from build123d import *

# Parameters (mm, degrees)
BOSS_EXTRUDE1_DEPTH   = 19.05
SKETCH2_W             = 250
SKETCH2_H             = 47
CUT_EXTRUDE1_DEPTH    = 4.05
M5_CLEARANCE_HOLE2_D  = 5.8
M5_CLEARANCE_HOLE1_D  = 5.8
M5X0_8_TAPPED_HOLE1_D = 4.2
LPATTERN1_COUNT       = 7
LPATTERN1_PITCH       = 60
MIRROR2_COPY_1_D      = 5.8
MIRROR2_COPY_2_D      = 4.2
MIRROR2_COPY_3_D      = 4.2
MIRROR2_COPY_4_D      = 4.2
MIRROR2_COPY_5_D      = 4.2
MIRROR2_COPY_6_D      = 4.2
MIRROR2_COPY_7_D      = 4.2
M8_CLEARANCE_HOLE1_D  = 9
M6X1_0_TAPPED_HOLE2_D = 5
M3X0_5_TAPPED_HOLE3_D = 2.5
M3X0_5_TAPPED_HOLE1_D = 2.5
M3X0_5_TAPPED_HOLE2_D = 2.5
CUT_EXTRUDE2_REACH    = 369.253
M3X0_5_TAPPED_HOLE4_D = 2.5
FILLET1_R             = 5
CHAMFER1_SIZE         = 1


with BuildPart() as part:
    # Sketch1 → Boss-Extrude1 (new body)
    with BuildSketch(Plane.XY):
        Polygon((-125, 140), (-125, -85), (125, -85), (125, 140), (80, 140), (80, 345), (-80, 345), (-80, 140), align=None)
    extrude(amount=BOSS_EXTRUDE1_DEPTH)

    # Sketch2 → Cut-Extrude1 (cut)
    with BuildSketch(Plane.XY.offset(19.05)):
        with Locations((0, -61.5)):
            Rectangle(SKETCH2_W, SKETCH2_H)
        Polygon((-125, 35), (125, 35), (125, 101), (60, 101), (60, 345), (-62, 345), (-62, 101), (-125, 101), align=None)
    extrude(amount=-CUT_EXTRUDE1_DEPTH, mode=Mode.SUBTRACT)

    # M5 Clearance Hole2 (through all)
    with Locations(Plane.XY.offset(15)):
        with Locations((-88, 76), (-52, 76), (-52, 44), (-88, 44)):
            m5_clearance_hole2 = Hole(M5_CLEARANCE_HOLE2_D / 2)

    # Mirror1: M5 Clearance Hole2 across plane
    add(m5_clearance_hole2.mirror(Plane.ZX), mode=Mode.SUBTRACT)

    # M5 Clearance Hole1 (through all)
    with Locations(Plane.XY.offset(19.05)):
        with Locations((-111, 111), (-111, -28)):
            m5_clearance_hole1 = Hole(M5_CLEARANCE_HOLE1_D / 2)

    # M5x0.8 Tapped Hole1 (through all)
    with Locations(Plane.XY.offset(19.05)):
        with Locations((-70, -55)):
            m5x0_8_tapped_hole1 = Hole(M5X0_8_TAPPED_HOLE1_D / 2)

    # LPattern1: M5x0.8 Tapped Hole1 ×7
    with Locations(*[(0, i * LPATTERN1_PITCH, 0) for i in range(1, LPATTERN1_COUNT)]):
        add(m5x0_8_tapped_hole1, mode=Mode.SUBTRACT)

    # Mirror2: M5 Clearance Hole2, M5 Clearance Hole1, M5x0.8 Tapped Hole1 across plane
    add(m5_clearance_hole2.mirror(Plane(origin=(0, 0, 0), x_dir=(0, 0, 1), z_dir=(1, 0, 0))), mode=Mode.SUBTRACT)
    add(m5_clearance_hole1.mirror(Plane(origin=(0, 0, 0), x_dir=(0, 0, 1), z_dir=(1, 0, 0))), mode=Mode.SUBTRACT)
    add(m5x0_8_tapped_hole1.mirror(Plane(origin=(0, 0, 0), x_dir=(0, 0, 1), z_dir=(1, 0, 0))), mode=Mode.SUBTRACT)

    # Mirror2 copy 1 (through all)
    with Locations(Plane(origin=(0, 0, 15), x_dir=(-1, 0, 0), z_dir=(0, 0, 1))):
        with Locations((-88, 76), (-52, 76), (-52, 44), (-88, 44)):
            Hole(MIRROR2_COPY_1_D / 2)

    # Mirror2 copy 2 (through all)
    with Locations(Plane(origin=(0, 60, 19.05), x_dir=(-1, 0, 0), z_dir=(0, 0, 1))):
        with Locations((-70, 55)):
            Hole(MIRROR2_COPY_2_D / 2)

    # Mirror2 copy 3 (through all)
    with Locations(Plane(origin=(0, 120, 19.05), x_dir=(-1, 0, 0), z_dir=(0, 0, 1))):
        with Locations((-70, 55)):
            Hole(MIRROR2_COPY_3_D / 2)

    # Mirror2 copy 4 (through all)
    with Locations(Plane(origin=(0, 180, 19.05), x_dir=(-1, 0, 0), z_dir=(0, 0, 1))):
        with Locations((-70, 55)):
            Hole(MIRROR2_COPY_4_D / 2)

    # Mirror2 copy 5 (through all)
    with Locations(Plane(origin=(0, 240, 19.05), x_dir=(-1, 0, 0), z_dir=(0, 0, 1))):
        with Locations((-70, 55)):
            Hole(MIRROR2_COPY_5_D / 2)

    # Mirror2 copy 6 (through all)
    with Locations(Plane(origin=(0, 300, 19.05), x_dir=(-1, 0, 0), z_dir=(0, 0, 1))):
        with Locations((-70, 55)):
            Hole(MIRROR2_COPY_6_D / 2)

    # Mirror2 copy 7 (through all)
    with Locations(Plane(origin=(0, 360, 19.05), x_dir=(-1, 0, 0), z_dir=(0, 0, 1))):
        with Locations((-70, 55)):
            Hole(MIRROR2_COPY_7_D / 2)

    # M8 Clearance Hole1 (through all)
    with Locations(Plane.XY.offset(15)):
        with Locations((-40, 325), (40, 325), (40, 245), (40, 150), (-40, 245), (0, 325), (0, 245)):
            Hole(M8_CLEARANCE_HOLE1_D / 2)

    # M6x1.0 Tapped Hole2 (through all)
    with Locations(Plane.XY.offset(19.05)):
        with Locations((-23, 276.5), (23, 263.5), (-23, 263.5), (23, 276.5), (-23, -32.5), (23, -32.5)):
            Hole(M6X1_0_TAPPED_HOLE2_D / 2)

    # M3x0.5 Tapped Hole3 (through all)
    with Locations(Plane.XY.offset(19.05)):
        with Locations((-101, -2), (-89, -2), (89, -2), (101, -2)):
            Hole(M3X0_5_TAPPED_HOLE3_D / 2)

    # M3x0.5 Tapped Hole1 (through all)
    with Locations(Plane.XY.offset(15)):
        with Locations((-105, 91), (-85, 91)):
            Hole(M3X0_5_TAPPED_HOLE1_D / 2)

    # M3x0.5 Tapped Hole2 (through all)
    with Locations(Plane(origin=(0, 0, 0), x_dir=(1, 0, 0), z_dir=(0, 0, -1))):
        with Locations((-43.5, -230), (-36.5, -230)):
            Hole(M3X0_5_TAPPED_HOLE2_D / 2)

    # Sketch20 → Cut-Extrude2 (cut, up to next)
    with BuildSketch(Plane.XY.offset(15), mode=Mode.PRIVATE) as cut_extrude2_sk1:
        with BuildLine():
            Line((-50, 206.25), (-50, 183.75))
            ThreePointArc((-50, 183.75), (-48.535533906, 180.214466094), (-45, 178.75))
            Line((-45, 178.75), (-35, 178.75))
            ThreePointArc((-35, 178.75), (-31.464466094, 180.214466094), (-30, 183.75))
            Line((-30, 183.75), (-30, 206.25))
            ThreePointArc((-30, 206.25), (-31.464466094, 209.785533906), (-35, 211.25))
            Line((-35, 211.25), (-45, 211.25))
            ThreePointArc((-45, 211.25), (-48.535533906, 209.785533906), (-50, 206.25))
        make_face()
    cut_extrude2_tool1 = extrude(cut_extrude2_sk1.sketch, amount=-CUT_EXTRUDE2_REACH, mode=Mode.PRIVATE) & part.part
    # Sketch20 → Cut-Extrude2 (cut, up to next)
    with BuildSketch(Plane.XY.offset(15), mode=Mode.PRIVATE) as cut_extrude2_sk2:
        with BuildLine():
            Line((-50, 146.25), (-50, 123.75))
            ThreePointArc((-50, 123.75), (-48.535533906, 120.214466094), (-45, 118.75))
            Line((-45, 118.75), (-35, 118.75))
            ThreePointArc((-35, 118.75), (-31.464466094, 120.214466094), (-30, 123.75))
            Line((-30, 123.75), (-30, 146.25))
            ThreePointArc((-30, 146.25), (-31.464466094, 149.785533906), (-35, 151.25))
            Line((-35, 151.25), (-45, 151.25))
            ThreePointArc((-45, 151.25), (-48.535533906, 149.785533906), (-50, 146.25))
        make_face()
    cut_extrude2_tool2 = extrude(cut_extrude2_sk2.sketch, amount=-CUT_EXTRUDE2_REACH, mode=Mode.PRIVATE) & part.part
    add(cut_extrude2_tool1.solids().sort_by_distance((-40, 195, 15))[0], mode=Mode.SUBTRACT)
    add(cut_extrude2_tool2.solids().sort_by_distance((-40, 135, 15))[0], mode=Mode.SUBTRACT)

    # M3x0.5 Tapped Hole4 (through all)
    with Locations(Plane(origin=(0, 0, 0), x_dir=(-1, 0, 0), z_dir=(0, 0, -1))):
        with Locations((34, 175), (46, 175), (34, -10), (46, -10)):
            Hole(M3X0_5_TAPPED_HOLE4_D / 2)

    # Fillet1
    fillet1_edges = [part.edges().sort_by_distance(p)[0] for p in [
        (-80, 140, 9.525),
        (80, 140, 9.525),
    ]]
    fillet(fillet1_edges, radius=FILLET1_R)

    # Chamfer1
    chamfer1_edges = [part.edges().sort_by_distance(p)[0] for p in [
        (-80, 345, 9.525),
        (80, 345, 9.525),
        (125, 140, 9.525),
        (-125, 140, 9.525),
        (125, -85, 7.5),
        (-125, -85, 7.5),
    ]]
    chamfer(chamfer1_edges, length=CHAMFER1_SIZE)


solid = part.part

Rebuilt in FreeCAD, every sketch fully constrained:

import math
import FreeCAD as App
import Part
import Sketcher

V = App.Vector
Q = App.Units.Quantity


def edges_at(feature, points):
    """Names of the edges that pass closest to the given points."""
    edges = feature.Shape.Edges
    near = lambda p: min(range(len(edges)), key=lambda i: edges[i].distToShape(Part.Vertex(*p))[0])
    return sorted({f"Edge{near(p) + 1}" for p in points})

doc = App.newDocument("Part")
body = doc.addObject("PartDesign::Body", "Body")

# Sketch on XY plane
sketch1 = body.newObject("Sketcher::SketchObject", "Sketch")
sketch1.AttachmentSupport = (doc.getObject("XY_Plane"), [""])
sketch1.MapMode = "FlatFace"
sketch1.addGeometry(Part.LineSegment(V(-125, 140, 0), V(-125, -85, 0)), False)
sketch1.addGeometry(Part.LineSegment(V(-125, -85, 0), V(125, -85, 0)), False)
sketch1.addGeometry(Part.LineSegment(V(125, -85, 0), V(125, 140, 0)), False)
sketch1.addGeometry(Part.LineSegment(V(125, 140, 0), V(80, 140, 0)), False)
sketch1.addGeometry(Part.LineSegment(V(80, 140, 0), V(80, 345, 0)), False)
sketch1.addGeometry(Part.LineSegment(V(80, 345, 0), V(-80, 345, 0)), False)
sketch1.addGeometry(Part.LineSegment(V(-80, 345, 0), V(-80, 140, 0)), False)
sketch1.addGeometry(Part.LineSegment(V(-80, 140, 0), V(-125, 140, 0)), False)
sketch1.addConstraint(Sketcher.Constraint("Coincident", 0, 2, 1, 1))
sketch1.addConstraint(Sketcher.Constraint("Coincident", 1, 2, 2, 1))
sketch1.addConstraint(Sketcher.Constraint("Coincident", 2, 2, 3, 1))
sketch1.addConstraint(Sketcher.Constraint("Coincident", 3, 2, 4, 1))
sketch1.addConstraint(Sketcher.Constraint("Coincident", 4, 2, 5, 1))
sketch1.addConstraint(Sketcher.Constraint("Coincident", 5, 2, 6, 1))
sketch1.addConstraint(Sketcher.Constraint("Coincident", 6, 2, 7, 1))
sketch1.addConstraint(Sketcher.Constraint("Coincident", 7, 2, 0, 1))
sketch1.addConstraint(Sketcher.Constraint("Vertical", 0))
sketch1.addConstraint(Sketcher.Constraint("Horizontal", 1))
sketch1.addConstraint(Sketcher.Constraint("Vertical", 2))
sketch1.addConstraint(Sketcher.Constraint("Horizontal", 3))
sketch1.addConstraint(Sketcher.Constraint("Vertical", 4))
sketch1.addConstraint(Sketcher.Constraint("Horizontal", 5))
sketch1.addConstraint(Sketcher.Constraint("Vertical", 6))
sketch1.addConstraint(Sketcher.Constraint("Horizontal", 7))
sketch1.addConstraint(Sketcher.Constraint("Symmetric", 3, 2, 6, 2, -2))
sketch1.addConstraint(Sketcher.Constraint("Equal", 3, 7))
sketch1.addConstraint(Sketcher.Constraint("DistanceX", 1, 1, 1, 2, Q("250 mm")))
sketch1.addConstraint(Sketcher.Constraint("DistanceX", 3, 2, 3, 1, Q("45 mm")))
sketch1.addConstraint(Sketcher.Constraint("DistanceY", 0, 2, 0, 1, Q("225 mm")))
sketch1.addConstraint(Sketcher.Constraint("DistanceY", 4, 1, 4, 2, Q("205 mm")))
sketch1.addConstraint(Sketcher.Constraint("DistanceY", 0, 2, -1, 1, Q("85 mm")))
pad1 = body.newObject("PartDesign::Pad", "Pad")
pad1.Profile = sketch1
pad1.Length = 19.05

# Sketch on XY plane
sketch2 = body.newObject("Sketcher::SketchObject", "Sketch001")
sketch2.AttachmentSupport = (doc.getObject("XY_Plane"), [""])
sketch2.MapMode = "FlatFace"
sketch2.AttachmentOffset = App.Placement(V(0, 0, 19.05), App.Rotation())
sketch2.addGeometry(Part.LineSegment(V(-125, -38, 0), V(-125, -85, 0)), False)
sketch2.addGeometry(Part.LineSegment(V(-125, -85, 0), V(125, -85, 0)), False)
sketch2.addGeometry(Part.LineSegment(V(125, -85, 0), V(125, -38, 0)), False)
sketch2.addGeometry(Part.LineSegment(V(125, -38, 0), V(-125, -38, 0)), False)
sketch2.addGeometry(Part.LineSegment(V(-125, 35, 0), V(125, 35, 0)), False)
sketch2.addGeometry(Part.LineSegment(V(125, 35, 0), V(125, 101, 0)), False)
sketch2.addGeometry(Part.LineSegment(V(125, 101, 0), V(60, 101, 0)), False)
sketch2.addGeometry(Part.LineSegment(V(60, 101, 0), V(60, 345, 0)), False)
sketch2.addGeometry(Part.LineSegment(V(60, 345, 0), V(-62, 345, 0)), False)
sketch2.addGeometry(Part.LineSegment(V(-62, 345, 0), V(-62, 101, 0)), False)
sketch2.addGeometry(Part.LineSegment(V(-62, 101, 0), V(-125, 101, 0)), False)
sketch2.addGeometry(Part.LineSegment(V(-125, 101, 0), V(-125, 35, 0)), False)
sketch2.addConstraint(Sketcher.Constraint("Coincident", 0, 2, 1, 1))
sketch2.addConstraint(Sketcher.Constraint("Coincident", 1, 2, 2, 1))
sketch2.addConstraint(Sketcher.Constraint("Coincident", 2, 2, 3, 1))
sketch2.addConstraint(Sketcher.Constraint("Coincident", 3, 2, 0, 1))
sketch2.addConstraint(Sketcher.Constraint("Coincident", 4, 2, 5, 1))
sketch2.addConstraint(Sketcher.Constraint("Coincident", 5, 2, 6, 1))
sketch2.addConstraint(Sketcher.Constraint("Coincident", 6, 2, 7, 1))
sketch2.addConstraint(Sketcher.Constraint("Coincident", 7, 2, 8, 1))
sketch2.addConstraint(Sketcher.Constraint("Coincident", 8, 2, 9, 1))
sketch2.addConstraint(Sketcher.Constraint("Coincident", 9, 2, 10, 1))
sketch2.addConstraint(Sketcher.Constraint("Coincident", 10, 2, 11, 1))
sketch2.addConstraint(Sketcher.Constraint("Coincident", 11, 2, 4, 1))
sketch2.addConstraint(Sketcher.Constraint("Vertical", 0))
sketch2.addConstraint(Sketcher.Constraint("Horizontal", 1))
sketch2.addConstraint(Sketcher.Constraint("Vertical", 2))
sketch2.addConstraint(Sketcher.Constraint("Horizontal", 3))
sketch2.addConstraint(Sketcher.Constraint("Horizontal", 4))
sketch2.addConstraint(Sketcher.Constraint("Vertical", 5))
sketch2.addConstraint(Sketcher.Constraint("Horizontal", 6))
sketch2.addConstraint(Sketcher.Constraint("Vertical", 7))
sketch2.addConstraint(Sketcher.Constraint("Horizontal", 8))
sketch2.addConstraint(Sketcher.Constraint("Vertical", 9))
sketch2.addConstraint(Sketcher.Constraint("Horizontal", 10))
sketch2.addConstraint(Sketcher.Constraint("Vertical", 11))
sketch2.addConstraint(Sketcher.Constraint("Symmetric", 5, 2, 10, 2, -2))
sketch2.addConstraint(Sketcher.Constraint("Vertical", 2, 2, 4, 2))
sketch2.addConstraint(Sketcher.Constraint("Vertical", 3, 2, 10, 2))
sketch2.addConstraint(Sketcher.Constraint("DistanceX", 1, 1, 1, 2, Q("250 mm")))
sketch2.addConstraint(Sketcher.Constraint("DistanceX", 6, 2, 6, 1, Q("65 mm")))
sketch2.addConstraint(Sketcher.Constraint("DistanceX", 8, 2, 8, 1, Q("122 mm")))
sketch2.addConstraint(Sketcher.Constraint("DistanceY", 0, 2, 0, 1, Q("47 mm")))
sketch2.addConstraint(Sketcher.Constraint("DistanceY", 5, 1, 5, 2, Q("66 mm")))
sketch2.addConstraint(Sketcher.Constraint("DistanceY", 7, 1, 7, 2, Q("244 mm")))
sketch2.addConstraint(Sketcher.Constraint("DistanceY", 0, 2, -1, 1, Q("85 mm")))
sketch2.addConstraint(Sketcher.Constraint("DistanceY", -1, 1, 4, 2, Q("35 mm")))
pocket1 = body.newObject("PartDesign::Pocket", "Pocket")
pocket1.Profile = sketch2
pocket1.Length = 4.05

# Sketch on XY plane
sketch3 = body.newObject("Sketcher::SketchObject", "Sketch002")
sketch3.AttachmentSupport = (doc.getObject("XY_Plane"), [""])
sketch3.MapMode = "FlatFace"
sketch3.AttachmentOffset = App.Placement(V(0, 0, 15), App.Rotation())
sketch3.addGeometry(Part.Circle(V(-88, 76, 0), V(0, 0, 1), 2.9), False)
sketch3.addGeometry(Part.Circle(V(-52, 76, 0), V(0, 0, 1), 2.9), False)
sketch3.addGeometry(Part.Circle(V(-52, 44, 0), V(0, 0, 1), 2.9), False)
sketch3.addGeometry(Part.Circle(V(-88, 44, 0), V(0, 0, 1), 2.9), False)
sketch3.addConstraint(Sketcher.Constraint("Equal", 0, 1))
sketch3.addConstraint(Sketcher.Constraint("Equal", 1, 2))
sketch3.addConstraint(Sketcher.Constraint("Equal", 2, 3))
sketch3.addConstraint(Sketcher.Constraint("Horizontal", 0, 3, 1, 3))
sketch3.addConstraint(Sketcher.Constraint("Horizontal", 2, 3, 3, 3))
sketch3.addConstraint(Sketcher.Constraint("Vertical", 1, 3, 2, 3))
sketch3.addConstraint(Sketcher.Constraint("Vertical", 0, 3, 3, 3))
sketch3.addConstraint(Sketcher.Constraint("Diameter", 0, Q("5.8 mm")))
sketch3.addConstraint(Sketcher.Constraint("DistanceX", 0, 3, -1, 1, Q("88 mm")))
sketch3.addConstraint(Sketcher.Constraint("DistanceY", -1, 1, 0, 3, Q("76 mm")))
sketch3.addConstraint(Sketcher.Constraint("DistanceX", 1, 3, -1, 1, Q("52 mm")))
sketch3.addConstraint(Sketcher.Constraint("DistanceY", -1, 1, 2, 3, Q("44 mm")))
doc.recompute()
hole = body.newObject("PartDesign::Hole", "Hole")
hole.Profile = sketch3
hole.ThreadType = "None"
hole.Diameter = 5.8
hole.DepthType = "ThroughAll"
doc.recompute()

mirrored = body.newObject("PartDesign::Mirrored", "Mirrored")
mirrored.Originals = [hole]
mirrored.MirrorPlane = (doc.getObject("XZ_Plane"), [""])
body.Tip = mirrored

# Sketch on XY plane
sketch4 = body.newObject("Sketcher::SketchObject", "Sketch003")
sketch4.AttachmentSupport = (doc.getObject("XY_Plane"), [""])
sketch4.MapMode = "FlatFace"
sketch4.AttachmentOffset = App.Placement(V(0, 0, 19.05), App.Rotation())
sketch4.addGeometry(Part.Circle(V(-111, 111, 0), V(0, 0, 1), 2.9), False)
sketch4.addGeometry(Part.Circle(V(-111, -28, 0), V(0, 0, 1), 2.9), False)
sketch4.addConstraint(Sketcher.Constraint("Equal", 0, 1))
sketch4.addConstraint(Sketcher.Constraint("Vertical", 0, 3, 1, 3))
sketch4.addConstraint(Sketcher.Constraint("Diameter", 0, Q("5.8 mm")))
sketch4.addConstraint(Sketcher.Constraint("DistanceX", 0, 3, -1, 1, Q("111 mm")))
sketch4.addConstraint(Sketcher.Constraint("DistanceY", -1, 1, 0, 3, Q("111 mm")))
sketch4.addConstraint(Sketcher.Constraint("DistanceY", 1, 3, -1, 1, Q("28 mm")))
doc.recompute()
hole2 = body.newObject("PartDesign::Hole", "Hole001")
hole2.Profile = sketch4
hole2.ThreadType = "None"
hole2.Diameter = 5.8
hole2.DepthType = "ThroughAll"

# Sketch on XY plane
sketch5 = body.newObject("Sketcher::SketchObject", "Sketch004")
sketch5.AttachmentSupport = (doc.getObject("XY_Plane"), [""])
sketch5.MapMode = "FlatFace"
sketch5.AttachmentOffset = App.Placement(V(0, 0, 19.05), App.Rotation())
sketch5.addGeometry(Part.Circle(V(-70, -55, 0), V(0, 0, 1), 2.1), False)
sketch5.addConstraint(Sketcher.Constraint("Diameter", 0, Q("4.2 mm")))
sketch5.addConstraint(Sketcher.Constraint("DistanceX", 0, 3, -1, 1, Q("70 mm")))
sketch5.addConstraint(Sketcher.Constraint("DistanceY", 0, 3, -1, 1, Q("55 mm")))
doc.recompute()
hole3 = body.newObject("PartDesign::Hole", "Hole002")
hole3.Profile = sketch5
hole3.ThreadType = "None"
hole3.Diameter = 4.2
hole3.DepthType = "ThroughAll"
doc.recompute()

linearpattern = body.newObject("PartDesign::LinearPattern", "LinearPattern")
linearpattern.Originals = [hole3]
linearpattern.Direction = (doc.getObject("Y_Axis"), [""])
linearpattern.Mode = "offset"
linearpattern.Offset = 60
linearpattern.Occurrences = 7
body.Tip = linearpattern
doc.recompute()

mirrored2 = body.newObject("PartDesign::Mirrored", "Mirrored001")
mirrored2.Originals = [hole, hole2, hole3]
mirrored2.MirrorPlane = (doc.getObject("YZ_Plane"), [""])
body.Tip = mirrored2

# Sketch on XY plane
sketch6 = body.newObject("Sketcher::SketchObject", "Sketch005")
sketch6.AttachmentSupport = (doc.getObject("XY_Plane"), [""])
sketch6.MapMode = "FlatFace"
sketch6.AttachmentOffset = App.Placement(V(0, 0, 15), App.Rotation())
sketch6.addGeometry(Part.Circle(V(88, -76, 0), V(0, 0, 1), 2.9), False)
sketch6.addGeometry(Part.Circle(V(52, -76, 0), V(0, 0, 1), 2.9), False)
sketch6.addGeometry(Part.Circle(V(52, -44, 0), V(0, 0, 1), 2.9), False)
sketch6.addGeometry(Part.Circle(V(88, -44, 0), V(0, 0, 1), 2.9), False)
sketch6.addConstraint(Sketcher.Constraint("Equal", 0, 1))
sketch6.addConstraint(Sketcher.Constraint("Equal", 1, 2))
sketch6.addConstraint(Sketcher.Constraint("Equal", 2, 3))
sketch6.addConstraint(Sketcher.Constraint("Horizontal", 0, 3, 1, 3))
sketch6.addConstraint(Sketcher.Constraint("Horizontal", 2, 3, 3, 3))
sketch6.addConstraint(Sketcher.Constraint("Vertical", 1, 3, 2, 3))
sketch6.addConstraint(Sketcher.Constraint("Vertical", 0, 3, 3, 3))
sketch6.addConstraint(Sketcher.Constraint("Diameter", 0, Q("5.8 mm")))
sketch6.addConstraint(Sketcher.Constraint("DistanceX", -1, 1, 0, 3, Q("88 mm")))
sketch6.addConstraint(Sketcher.Constraint("DistanceY", 0, 3, -1, 1, Q("76 mm")))
sketch6.addConstraint(Sketcher.Constraint("DistanceX", -1, 1, 1, 3, Q("52 mm")))
sketch6.addConstraint(Sketcher.Constraint("DistanceY", 2, 3, -1, 1, Q("44 mm")))
doc.recompute()
hole4 = body.newObject("PartDesign::Hole", "Hole003")
hole4.Profile = sketch6
hole4.ThreadType = "None"
hole4.Diameter = 5.8
hole4.DepthType = "ThroughAll"

# Sketch on XY plane
sketch7 = body.newObject("Sketcher::SketchObject", "Sketch006")
sketch7.AttachmentSupport = (doc.getObject("XY_Plane"), [""])
sketch7.MapMode = "FlatFace"
sketch7.AttachmentOffset = App.Placement(V(0, 0, 19.05), App.Rotation())
sketch7.addGeometry(Part.Circle(V(70, 5, 0), V(0, 0, 1), 2.1), False)
sketch7.addConstraint(Sketcher.Constraint("Diameter", 0, Q("4.2 mm")))
sketch7.addConstraint(Sketcher.Constraint("DistanceX", -1, 1, 0, 3, Q("70 mm")))
sketch7.addConstraint(Sketcher.Constraint("DistanceY", -1, 1, 0, 3, Q("5 mm")))
doc.recompute()
hole5 = body.newObject("PartDesign::Hole", "Hole004")
hole5.Profile = sketch7
hole5.ThreadType = "None"
hole5.Diameter = 4.2
hole5.DepthType = "ThroughAll"

# Sketch on XY plane
sketch8 = body.newObject("Sketcher::SketchObject", "Sketch007")
sketch8.AttachmentSupport = (doc.getObject("XY_Plane"), [""])
sketch8.MapMode = "FlatFace"
sketch8.AttachmentOffset = App.Placement(V(0, 0, 19.05), App.Rotation())
sketch8.addGeometry(Part.Circle(V(70, 65, 0), V(0, 0, 1), 2.1), False)
sketch8.addConstraint(Sketcher.Constraint("Diameter", 0, Q("4.2 mm")))
sketch8.addConstraint(Sketcher.Constraint("DistanceX", -1, 1, 0, 3, Q("70 mm")))
sketch8.addConstraint(Sketcher.Constraint("DistanceY", -1, 1, 0, 3, Q("65 mm")))
doc.recompute()
hole6 = body.newObject("PartDesign::Hole", "Hole005")
hole6.Profile = sketch8
hole6.ThreadType = "None"
hole6.Diameter = 4.2
hole6.DepthType = "ThroughAll"

# Sketch on XY plane
sketch9 = body.newObject("Sketcher::SketchObject", "Sketch008")
sketch9.AttachmentSupport = (doc.getObject("XY_Plane"), [""])
sketch9.MapMode = "FlatFace"
sketch9.AttachmentOffset = App.Placement(V(0, 0, 19.05), App.Rotation())
sketch9.addGeometry(Part.Circle(V(70, 125, 0), V(0, 0, 1), 2.1), False)
sketch9.addConstraint(Sketcher.Constraint("Diameter", 0, Q("4.2 mm")))
sketch9.addConstraint(Sketcher.Constraint("DistanceX", -1, 1, 0, 3, Q("70 mm")))
sketch9.addConstraint(Sketcher.Constraint("DistanceY", -1, 1, 0, 3, Q("125 mm")))
doc.recompute()
hole7 = body.newObject("PartDesign::Hole", "Hole006")
hole7.Profile = sketch9
hole7.ThreadType = "None"
hole7.Diameter = 4.2
hole7.DepthType = "ThroughAll"

# Sketch on XY plane
sketch10 = body.newObject("Sketcher::SketchObject", "Sketch009")
sketch10.AttachmentSupport = (doc.getObject("XY_Plane"), [""])
sketch10.MapMode = "FlatFace"
sketch10.AttachmentOffset = App.Placement(V(0, 0, 19.05), App.Rotation())
sketch10.addGeometry(Part.Circle(V(70, 185, 0), V(0, 0, 1), 2.1), False)
sketch10.addConstraint(Sketcher.Constraint("Diameter", 0, Q("4.2 mm")))
sketch10.addConstraint(Sketcher.Constraint("DistanceX", -1, 1, 0, 3, Q("70 mm")))
sketch10.addConstraint(Sketcher.Constraint("DistanceY", -1, 1, 0, 3, Q("185 mm")))
doc.recompute()
hole8 = body.newObject("PartDesign::Hole", "Hole007")
hole8.Profile = sketch10
hole8.ThreadType = "None"
hole8.Diameter = 4.2
hole8.DepthType = "ThroughAll"

# Sketch on XY plane
sketch11 = body.newObject("Sketcher::SketchObject", "Sketch010")
sketch11.AttachmentSupport = (doc.getObject("XY_Plane"), [""])
sketch11.MapMode = "FlatFace"
sketch11.AttachmentOffset = App.Placement(V(0, 0, 19.05), App.Rotation())
sketch11.addGeometry(Part.Circle(V(70, 245, 0), V(0, 0, 1), 2.1), False)
sketch11.addConstraint(Sketcher.Constraint("Diameter", 0, Q("4.2 mm")))
sketch11.addConstraint(Sketcher.Constraint("DistanceX", -1, 1, 0, 3, Q("70 mm")))
sketch11.addConstraint(Sketcher.Constraint("DistanceY", -1, 1, 0, 3, Q("245 mm")))
doc.recompute()
hole9 = body.newObject("PartDesign::Hole", "Hole008")
hole9.Profile = sketch11
hole9.ThreadType = "None"
hole9.Diameter = 4.2
hole9.DepthType = "ThroughAll"

# Sketch on XY plane
sketch12 = body.newObject("Sketcher::SketchObject", "Sketch011")
sketch12.AttachmentSupport = (doc.getObject("XY_Plane"), [""])
sketch12.MapMode = "FlatFace"
sketch12.AttachmentOffset = App.Placement(V(0, 0, 19.05), App.Rotation())
sketch12.addGeometry(Part.Circle(V(70, 305, 0), V(0, 0, 1), 2.1), False)
sketch12.addConstraint(Sketcher.Constraint("Diameter", 0, Q("4.2 mm")))
sketch12.addConstraint(Sketcher.Constraint("DistanceX", -1, 1, 0, 3, Q("70 mm")))
sketch12.addConstraint(Sketcher.Constraint("DistanceY", -1, 1, 0, 3, Q("305 mm")))
doc.recompute()
hole10 = body.newObject("PartDesign::Hole", "Hole009")
hole10.Profile = sketch12
hole10.ThreadType = "None"
hole10.Diameter = 4.2
hole10.DepthType = "ThroughAll"

# Sketch on XY plane
sketch13 = body.newObject("Sketcher::SketchObject", "Sketch012")
sketch13.AttachmentSupport = (doc.getObject("XY_Plane"), [""])
sketch13.MapMode = "FlatFace"
sketch13.AttachmentOffset = App.Placement(V(0, 0, 15), App.Rotation())
sketch13.addGeometry(Part.Circle(V(-40, 325, 0), V(0, 0, 1), 4.5), False)
sketch13.addGeometry(Part.Circle(V(40, 325, 0), V(0, 0, 1), 4.5), False)
sketch13.addGeometry(Part.Circle(V(40, 245, 0), V(0, 0, 1), 4.5), False)
sketch13.addGeometry(Part.Circle(V(40, 150, 0), V(0, 0, 1), 4.5), False)
sketch13.addGeometry(Part.Circle(V(-40, 245, 0), V(0, 0, 1), 4.5), False)
sketch13.addGeometry(Part.Circle(V(0, 325, 0), V(0, 0, 1), 4.5), False)
sketch13.addGeometry(Part.Circle(V(0, 245, 0), V(0, 0, 1), 4.5), False)
sketch13.addConstraint(Sketcher.Constraint("Equal", 0, 1))
sketch13.addConstraint(Sketcher.Constraint("Equal", 1, 2))
sketch13.addConstraint(Sketcher.Constraint("Equal", 2, 3))
sketch13.addConstraint(Sketcher.Constraint("Equal", 3, 4))
sketch13.addConstraint(Sketcher.Constraint("Equal", 4, 5))
sketch13.addConstraint(Sketcher.Constraint("Equal", 5, 6))
sketch13.addConstraint(Sketcher.Constraint("Symmetric", 0, 3, 1, 3, -2))
sketch13.addConstraint(Sketcher.Constraint("Symmetric", 2, 3, 4, 3, -2))
sketch13.addConstraint(Sketcher.Constraint("PointOnObject", 5, 3, -2))
sketch13.addConstraint(Sketcher.Constraint("PointOnObject", 6, 3, -2))
sketch13.addConstraint(Sketcher.Constraint("Horizontal", 1, 3, 5, 3))
sketch13.addConstraint(Sketcher.Constraint("Horizontal", 4, 3, 6, 3))
sketch13.addConstraint(Sketcher.Constraint("Vertical", 1, 3, 2, 3))
sketch13.addConstraint(Sketcher.Constraint("Vertical", 2, 3, 3, 3))
sketch13.addConstraint(Sketcher.Constraint("Diameter", 0, Q("9 mm")))
sketch13.addConstraint(Sketcher.Constraint("DistanceX", 0, 3, -1, 1, Q("40 mm")))
sketch13.addConstraint(Sketcher.Constraint("DistanceY", -1, 1, 0, 3, Q("325 mm")))
sketch13.addConstraint(Sketcher.Constraint("DistanceY", -1, 1, 2, 3, Q("245 mm")))
sketch13.addConstraint(Sketcher.Constraint("DistanceY", -1, 1, 3, 3, Q("150 mm")))
doc.recompute()
hole11 = body.newObject("PartDesign::Hole", "Hole010")
hole11.Profile = sketch13
hole11.ThreadType = "None"
hole11.Diameter = 9
hole11.DepthType = "ThroughAll"

# Sketch on XY plane
sketch14 = body.newObject("Sketcher::SketchObject", "Sketch013")
sketch14.AttachmentSupport = (doc.getObject("XY_Plane"), [""])
sketch14.MapMode = "FlatFace"
sketch14.AttachmentOffset = App.Placement(V(0, 0, 19.05), App.Rotation())
sketch14.addGeometry(Part.Circle(V(-23, 276.5, 0), V(0, 0, 1), 2.5), False)
sketch14.addGeometry(Part.Circle(V(23, 263.5, 0), V(0, 0, 1), 2.5), False)
sketch14.addGeometry(Part.Circle(V(-23, 263.5, 0), V(0, 0, 1), 2.5), False)
sketch14.addGeometry(Part.Circle(V(23, 276.5, 0), V(0, 0, 1), 2.5), False)
sketch14.addGeometry(Part.Circle(V(-23, -32.5, 0), V(0, 0, 1), 2.5), False)
sketch14.addGeometry(Part.Circle(V(23, -32.5, 0), V(0, 0, 1), 2.5), False)
sketch14.addConstraint(Sketcher.Constraint("Equal", 0, 1))
sketch14.addConstraint(Sketcher.Constraint("Equal", 1, 2))
sketch14.addConstraint(Sketcher.Constraint("Equal", 2, 3))
sketch14.addConstraint(Sketcher.Constraint("Equal", 3, 4))
sketch14.addConstraint(Sketcher.Constraint("Equal", 4, 5))
sketch14.addConstraint(Sketcher.Constraint("Symmetric", 1, 3, 2, 3, -2))
sketch14.addConstraint(Sketcher.Constraint("Symmetric", 0, 3, 3, 3, -2))
sketch14.addConstraint(Sketcher.Constraint("Symmetric", 4, 3, 5, 3, -2))
sketch14.addConstraint(Sketcher.Constraint("Vertical", 0, 3, 2, 3))
sketch14.addConstraint(Sketcher.Constraint("Vertical", 2, 3, 4, 3))
sketch14.addConstraint(Sketcher.Constraint("Diameter", 0, Q("5 mm")))
sketch14.addConstraint(Sketcher.Constraint("DistanceX", 0, 3, -1, 1, Q("23 mm")))
sketch14.addConstraint(Sketcher.Constraint("DistanceY", 1, 3, 0, 3, Q("13 mm")))
sketch14.addConstraint(Sketcher.Constraint("DistanceY", 4, 3, 2, 3, Q("296 mm")))
sketch14.addConstraint(Sketcher.Constraint("DistanceY", -1, 1, 0, 3, Q("276.5 mm")))
doc.recompute()
hole12 = body.newObject("PartDesign::Hole", "Hole011")
hole12.Profile = sketch14
hole12.ThreadType = "None"
hole12.Diameter = 5
hole12.DepthType = "ThroughAll"

# Sketch on XY plane
sketch15 = body.newObject("Sketcher::SketchObject", "Sketch014")
sketch15.AttachmentSupport = (doc.getObject("XY_Plane"), [""])
sketch15.MapMode = "FlatFace"
sketch15.AttachmentOffset = App.Placement(V(0, 0, 19.05), App.Rotation())
sketch15.addGeometry(Part.Circle(V(-101, -2, 0), V(0, 0, 1), 1.2), False)
sketch15.addGeometry(Part.Circle(V(-89, -2, 0), V(0, 0, 1), 1.2), False)
sketch15.addGeometry(Part.Circle(V(89, -2, 0), V(0, 0, 1), 1.2), False)
sketch15.addGeometry(Part.Circle(V(101, -2, 0), V(0, 0, 1), 1.2), False)
sketch15.addConstraint(Sketcher.Constraint("Equal", 0, 1))
sketch15.addConstraint(Sketcher.Constraint("Equal", 1, 2))
sketch15.addConstraint(Sketcher.Constraint("Equal", 2, 3))
sketch15.addConstraint(Sketcher.Constraint("Symmetric", 1, 3, 2, 3, -2))
sketch15.addConstraint(Sketcher.Constraint("Symmetric", 0, 3, 3, 3, -2))
sketch15.addConstraint(Sketcher.Constraint("Horizontal", 0, 3, 1, 3))
sketch15.addConstraint(Sketcher.Constraint("Diameter", 0, Q("2.5 mm")))
sketch15.addConstraint(Sketcher.Constraint("DistanceX", 0, 3, -1, 1, Q("101 mm")))
sketch15.addConstraint(Sketcher.Constraint("DistanceY", 0, 3, -1, 1, Q("2 mm")))
sketch15.addConstraint(Sketcher.Constraint("DistanceX", 1, 3, -1, 1, Q("89 mm")))
doc.recompute()
hole13 = body.newObject("PartDesign::Hole", "Hole012")
hole13.Profile = sketch15
hole13.ThreadType = "None"
hole13.Diameter = 2.5
hole13.DepthType = "ThroughAll"

# Sketch on XY plane
sketch16 = body.newObject("Sketcher::SketchObject", "Sketch015")
sketch16.AttachmentSupport = (doc.getObject("XY_Plane"), [""])
sketch16.MapMode = "FlatFace"
sketch16.AttachmentOffset = App.Placement(V(0, 0, 15), App.Rotation())
sketch16.addGeometry(Part.Circle(V(-105, 91, 0), V(0, 0, 1), 1.2), False)
sketch16.addGeometry(Part.Circle(V(-85, 91, 0), V(0, 0, 1), 1.2), False)
sketch16.addConstraint(Sketcher.Constraint("Equal", 0, 1))
sketch16.addConstraint(Sketcher.Constraint("Horizontal", 0, 3, 1, 3))
sketch16.addConstraint(Sketcher.Constraint("Diameter", 0, Q("2.5 mm")))
sketch16.addConstraint(Sketcher.Constraint("DistanceX", 0, 3, -1, 1, Q("105 mm")))
sketch16.addConstraint(Sketcher.Constraint("DistanceY", -1, 1, 0, 3, Q("91 mm")))
sketch16.addConstraint(Sketcher.Constraint("DistanceX", 1, 3, -1, 1, Q("85 mm")))
doc.recompute()
hole14 = body.newObject("PartDesign::Hole", "Hole013")
hole14.Profile = sketch16
hole14.ThreadType = "None"
hole14.Diameter = 2.5
hole14.DepthType = "ThroughAll"

# Sketch on XY plane
sketch17 = body.newObject("Sketcher::SketchObject", "Sketch016")
sketch17.AttachmentSupport = (doc.getObject("XY_Plane"), [""])
sketch17.MapMode = "FlatFace"
sketch17.addGeometry(Part.Circle(V(-43.5, 230, 0), V(0, 0, 1), 1.2), False)
sketch17.addGeometry(Part.Circle(V(-36.5, 230, 0), V(0, 0, 1), 1.2), False)
sketch17.addConstraint(Sketcher.Constraint("Equal", 0, 1))
sketch17.addConstraint(Sketcher.Constraint("Horizontal", 0, 3, 1, 3))
sketch17.addConstraint(Sketcher.Constraint("Diameter", 0, Q("2.5 mm")))
sketch17.addConstraint(Sketcher.Constraint("DistanceY", -1, 1, 0, 3, Q("230 mm")))
sketch17.addConstraint(Sketcher.Constraint("DistanceX", 0, 3, 1, 3, Q("7 mm")))
sketch17.addConstraint(Sketcher.Constraint("DistanceX", 0, 3, -1, 1, Q("43.5 mm")))
doc.recompute()
hole15 = body.newObject("PartDesign::Hole", "Hole014")
hole15.Profile = sketch17
hole15.ThreadType = "None"
hole15.Diameter = 2.5
hole15.DepthType = "ThroughAll"
hole15.Reversed = True

# Sketch on XY plane
sketch18 = body.newObject("Sketcher::SketchObject", "Sketch017")
sketch18.AttachmentSupport = (doc.getObject("XY_Plane"), [""])
sketch18.MapMode = "FlatFace"
sketch18.AttachmentOffset = App.Placement(V(0, 0, 15), App.Rotation())
sketch18.addGeometry(Part.LineSegment(V(-50, 206, 0), V(-50, 184, 0)), False)
sketch18.addGeometry(Part.ArcOfCircle(Part.Circle(V(-45, 184, 0), V(0, 0, 1), 5), math.radians(180), math.radians(270)), False)
sketch18.addGeometry(Part.LineSegment(V(-45, 179, 0), V(-35, 179, 0)), False)
sketch18.addGeometry(Part.ArcOfCircle(Part.Circle(V(-35, 184, 0), V(0, 0, 1), 5), math.radians(-90), math.radians(0)), False)
sketch18.addGeometry(Part.LineSegment(V(-30, 184, 0), V(-30, 206, 0)), False)
sketch18.addGeometry(Part.ArcOfCircle(Part.Circle(V(-35, 206, 0), V(0, 0, 1), 5), math.radians(0), math.radians(90)), False)
sketch18.addGeometry(Part.LineSegment(V(-35, 211, 0), V(-45, 211, 0)), False)
sketch18.addGeometry(Part.ArcOfCircle(Part.Circle(V(-45, 206, 0), V(0, 0, 1), 5), math.radians(90), math.radians(180)), False)
sketch18.addConstraint(Sketcher.Constraint("Tangent", 0, 2, 1, 1))
sketch18.addConstraint(Sketcher.Constraint("Tangent", 1, 2, 2, 1))
sketch18.addConstraint(Sketcher.Constraint("Tangent", 2, 2, 3, 1))
sketch18.addConstraint(Sketcher.Constraint("Tangent", 3, 2, 4, 1))
sketch18.addConstraint(Sketcher.Constraint("Tangent", 4, 2, 5, 1))
sketch18.addConstraint(Sketcher.Constraint("Tangent", 5, 2, 6, 1))
sketch18.addConstraint(Sketcher.Constraint("Tangent", 6, 2, 7, 1))
sketch18.addConstraint(Sketcher.Constraint("Tangent", 7, 2, 0, 1))
sketch18.addConstraint(Sketcher.Constraint("Vertical", 0))
sketch18.addConstraint(Sketcher.Constraint("Horizontal", 2))
sketch18.addConstraint(Sketcher.Constraint("Vertical", 4))
sketch18.addConstraint(Sketcher.Constraint("Horizontal", 6))
sketch18.addConstraint(Sketcher.Constraint("Equal", 1, 3))
sketch18.addConstraint(Sketcher.Constraint("Equal", 3, 5))
sketch18.addConstraint(Sketcher.Constraint("Equal", 5, 7))
sketch18.addConstraint(Sketcher.Constraint("Radius", 1, Q("5 mm")))
sketch18.addConstraint(Sketcher.Constraint("DistanceX", 2, 1, 2, 2, Q("10 mm")))
sketch18.addConstraint(Sketcher.Constraint("DistanceY", 0, 2, 0, 1, Q("22.5 mm")))
sketch18.addConstraint(Sketcher.Constraint("DistanceX", 1, 3, -1, 1, Q("45 mm")))
sketch18.addConstraint(Sketcher.Constraint("DistanceY", -1, 1, 1, 3, Q("183.75 mm")))
pocket2 = body.newObject("PartDesign::Pocket", "Pocket001")
pocket2.Profile = sketch18
pocket2.Type = "UpToFirst"

# Sketch on XY plane
sketch19 = body.newObject("Sketcher::SketchObject", "Sketch018")
sketch19.AttachmentSupport = (doc.getObject("XY_Plane"), [""])
sketch19.MapMode = "FlatFace"
sketch19.AttachmentOffset = App.Placement(V(0, 0, 15), App.Rotation())
sketch19.addGeometry(Part.LineSegment(V(-50, 146, 0), V(-50, 124, 0)), False)
sketch19.addGeometry(Part.ArcOfCircle(Part.Circle(V(-45, 124, 0), V(0, 0, 1), 5), math.radians(180), math.radians(270)), False)
sketch19.addGeometry(Part.LineSegment(V(-45, 119, 0), V(-35, 119, 0)), False)
sketch19.addGeometry(Part.ArcOfCircle(Part.Circle(V(-35, 124, 0), V(0, 0, 1), 5), math.radians(-90), math.radians(0)), False)
sketch19.addGeometry(Part.LineSegment(V(-30, 124, 0), V(-30, 146, 0)), False)
sketch19.addGeometry(Part.ArcOfCircle(Part.Circle(V(-35, 146, 0), V(0, 0, 1), 5), math.radians(0), math.radians(90)), False)
sketch19.addGeometry(Part.LineSegment(V(-35, 151, 0), V(-45, 151, 0)), False)
sketch19.addGeometry(Part.ArcOfCircle(Part.Circle(V(-45, 146, 0), V(0, 0, 1), 5), math.radians(90), math.radians(180)), False)
sketch19.addConstraint(Sketcher.Constraint("Tangent", 0, 2, 1, 1))
sketch19.addConstraint(Sketcher.Constraint("Tangent", 1, 2, 2, 1))
sketch19.addConstraint(Sketcher.Constraint("Tangent", 2, 2, 3, 1))
sketch19.addConstraint(Sketcher.Constraint("Tangent", 3, 2, 4, 1))
sketch19.addConstraint(Sketcher.Constraint("Tangent", 4, 2, 5, 1))
sketch19.addConstraint(Sketcher.Constraint("Tangent", 5, 2, 6, 1))
sketch19.addConstraint(Sketcher.Constraint("Tangent", 6, 2, 7, 1))
sketch19.addConstraint(Sketcher.Constraint("Tangent", 7, 2, 0, 1))
sketch19.addConstraint(Sketcher.Constraint("Vertical", 0))
sketch19.addConstraint(Sketcher.Constraint("Horizontal", 2))
sketch19.addConstraint(Sketcher.Constraint("Vertical", 4))
sketch19.addConstraint(Sketcher.Constraint("Horizontal", 6))
sketch19.addConstraint(Sketcher.Constraint("Equal", 1, 3))
sketch19.addConstraint(Sketcher.Constraint("Equal", 3, 5))
sketch19.addConstraint(Sketcher.Constraint("Equal", 5, 7))
sketch19.addConstraint(Sketcher.Constraint("Radius", 1, Q("5 mm")))
sketch19.addConstraint(Sketcher.Constraint("DistanceX", 2, 1, 2, 2, Q("10 mm")))
sketch19.addConstraint(Sketcher.Constraint("DistanceY", 0, 2, 0, 1, Q("22.5 mm")))
sketch19.addConstraint(Sketcher.Constraint("DistanceX", 1, 3, -1, 1, Q("45 mm")))
sketch19.addConstraint(Sketcher.Constraint("DistanceY", -1, 1, 1, 3, Q("123.75 mm")))
pocket3 = body.newObject("PartDesign::Pocket", "Pocket002")
pocket3.Profile = sketch19
pocket3.Type = "UpToFirst"

# Sketch on XY plane
sketch20 = body.newObject("Sketcher::SketchObject", "Sketch019")
sketch20.AttachmentSupport = (doc.getObject("XY_Plane"), [""])
sketch20.MapMode = "FlatFace"
sketch20.addGeometry(Part.Circle(V(-34, 175, 0), V(0, 0, 1), 1.2), False)
sketch20.addGeometry(Part.Circle(V(-46, 175, 0), V(0, 0, 1), 1.2), False)
sketch20.addGeometry(Part.Circle(V(-34, -10, 0), V(0, 0, 1), 1.2), False)
sketch20.addGeometry(Part.Circle(V(-46, -10, 0), V(0, 0, 1), 1.2), False)
sketch20.addConstraint(Sketcher.Constraint("Equal", 0, 1))
sketch20.addConstraint(Sketcher.Constraint("Equal", 1, 2))
sketch20.addConstraint(Sketcher.Constraint("Equal", 2, 3))
sketch20.addConstraint(Sketcher.Constraint("Horizontal", 0, 3, 1, 3))
sketch20.addConstraint(Sketcher.Constraint("Horizontal", 2, 3, 3, 3))
sketch20.addConstraint(Sketcher.Constraint("Vertical", 0, 3, 2, 3))
sketch20.addConstraint(Sketcher.Constraint("Vertical", 1, 3, 3, 3))
sketch20.addConstraint(Sketcher.Constraint("Diameter", 0, Q("2.5 mm")))
sketch20.addConstraint(Sketcher.Constraint("DistanceX", 0, 3, -1, 1, Q("34 mm")))
sketch20.addConstraint(Sketcher.Constraint("DistanceY", -1, 1, 0, 3, Q("175 mm")))
sketch20.addConstraint(Sketcher.Constraint("DistanceX", 1, 3, -1, 1, Q("46 mm")))
sketch20.addConstraint(Sketcher.Constraint("DistanceY", 2, 3, -1, 1, Q("10 mm")))
doc.recompute()
hole16 = body.newObject("PartDesign::Hole", "Hole015")
hole16.Profile = sketch20
hole16.ThreadType = "None"
hole16.Diameter = 2.5
hole16.DepthType = "ThroughAll"
hole16.Reversed = True
doc.recompute()

fillet = body.newObject("PartDesign::Fillet", "Fillet")
fillet.Base = (hole16, edges_at(hole16, [(-80, 140, 9.525), (80, 140, 9.525)]))
fillet.Radius = 5
doc.recompute()

chamfer = body.newObject("PartDesign::Chamfer", "Chamfer")
chamfer.Base = (fillet, edges_at(fillet, [
    (-80, 345, 9.525),
    (80, 345, 9.525),
    (125, 140, 9.525),
    (-125, 140, 9.525),
    (125, -85, 7.5),
    (-125, -85, 7.5),
]))
chamfer.Size = 1

doc.recompute()
